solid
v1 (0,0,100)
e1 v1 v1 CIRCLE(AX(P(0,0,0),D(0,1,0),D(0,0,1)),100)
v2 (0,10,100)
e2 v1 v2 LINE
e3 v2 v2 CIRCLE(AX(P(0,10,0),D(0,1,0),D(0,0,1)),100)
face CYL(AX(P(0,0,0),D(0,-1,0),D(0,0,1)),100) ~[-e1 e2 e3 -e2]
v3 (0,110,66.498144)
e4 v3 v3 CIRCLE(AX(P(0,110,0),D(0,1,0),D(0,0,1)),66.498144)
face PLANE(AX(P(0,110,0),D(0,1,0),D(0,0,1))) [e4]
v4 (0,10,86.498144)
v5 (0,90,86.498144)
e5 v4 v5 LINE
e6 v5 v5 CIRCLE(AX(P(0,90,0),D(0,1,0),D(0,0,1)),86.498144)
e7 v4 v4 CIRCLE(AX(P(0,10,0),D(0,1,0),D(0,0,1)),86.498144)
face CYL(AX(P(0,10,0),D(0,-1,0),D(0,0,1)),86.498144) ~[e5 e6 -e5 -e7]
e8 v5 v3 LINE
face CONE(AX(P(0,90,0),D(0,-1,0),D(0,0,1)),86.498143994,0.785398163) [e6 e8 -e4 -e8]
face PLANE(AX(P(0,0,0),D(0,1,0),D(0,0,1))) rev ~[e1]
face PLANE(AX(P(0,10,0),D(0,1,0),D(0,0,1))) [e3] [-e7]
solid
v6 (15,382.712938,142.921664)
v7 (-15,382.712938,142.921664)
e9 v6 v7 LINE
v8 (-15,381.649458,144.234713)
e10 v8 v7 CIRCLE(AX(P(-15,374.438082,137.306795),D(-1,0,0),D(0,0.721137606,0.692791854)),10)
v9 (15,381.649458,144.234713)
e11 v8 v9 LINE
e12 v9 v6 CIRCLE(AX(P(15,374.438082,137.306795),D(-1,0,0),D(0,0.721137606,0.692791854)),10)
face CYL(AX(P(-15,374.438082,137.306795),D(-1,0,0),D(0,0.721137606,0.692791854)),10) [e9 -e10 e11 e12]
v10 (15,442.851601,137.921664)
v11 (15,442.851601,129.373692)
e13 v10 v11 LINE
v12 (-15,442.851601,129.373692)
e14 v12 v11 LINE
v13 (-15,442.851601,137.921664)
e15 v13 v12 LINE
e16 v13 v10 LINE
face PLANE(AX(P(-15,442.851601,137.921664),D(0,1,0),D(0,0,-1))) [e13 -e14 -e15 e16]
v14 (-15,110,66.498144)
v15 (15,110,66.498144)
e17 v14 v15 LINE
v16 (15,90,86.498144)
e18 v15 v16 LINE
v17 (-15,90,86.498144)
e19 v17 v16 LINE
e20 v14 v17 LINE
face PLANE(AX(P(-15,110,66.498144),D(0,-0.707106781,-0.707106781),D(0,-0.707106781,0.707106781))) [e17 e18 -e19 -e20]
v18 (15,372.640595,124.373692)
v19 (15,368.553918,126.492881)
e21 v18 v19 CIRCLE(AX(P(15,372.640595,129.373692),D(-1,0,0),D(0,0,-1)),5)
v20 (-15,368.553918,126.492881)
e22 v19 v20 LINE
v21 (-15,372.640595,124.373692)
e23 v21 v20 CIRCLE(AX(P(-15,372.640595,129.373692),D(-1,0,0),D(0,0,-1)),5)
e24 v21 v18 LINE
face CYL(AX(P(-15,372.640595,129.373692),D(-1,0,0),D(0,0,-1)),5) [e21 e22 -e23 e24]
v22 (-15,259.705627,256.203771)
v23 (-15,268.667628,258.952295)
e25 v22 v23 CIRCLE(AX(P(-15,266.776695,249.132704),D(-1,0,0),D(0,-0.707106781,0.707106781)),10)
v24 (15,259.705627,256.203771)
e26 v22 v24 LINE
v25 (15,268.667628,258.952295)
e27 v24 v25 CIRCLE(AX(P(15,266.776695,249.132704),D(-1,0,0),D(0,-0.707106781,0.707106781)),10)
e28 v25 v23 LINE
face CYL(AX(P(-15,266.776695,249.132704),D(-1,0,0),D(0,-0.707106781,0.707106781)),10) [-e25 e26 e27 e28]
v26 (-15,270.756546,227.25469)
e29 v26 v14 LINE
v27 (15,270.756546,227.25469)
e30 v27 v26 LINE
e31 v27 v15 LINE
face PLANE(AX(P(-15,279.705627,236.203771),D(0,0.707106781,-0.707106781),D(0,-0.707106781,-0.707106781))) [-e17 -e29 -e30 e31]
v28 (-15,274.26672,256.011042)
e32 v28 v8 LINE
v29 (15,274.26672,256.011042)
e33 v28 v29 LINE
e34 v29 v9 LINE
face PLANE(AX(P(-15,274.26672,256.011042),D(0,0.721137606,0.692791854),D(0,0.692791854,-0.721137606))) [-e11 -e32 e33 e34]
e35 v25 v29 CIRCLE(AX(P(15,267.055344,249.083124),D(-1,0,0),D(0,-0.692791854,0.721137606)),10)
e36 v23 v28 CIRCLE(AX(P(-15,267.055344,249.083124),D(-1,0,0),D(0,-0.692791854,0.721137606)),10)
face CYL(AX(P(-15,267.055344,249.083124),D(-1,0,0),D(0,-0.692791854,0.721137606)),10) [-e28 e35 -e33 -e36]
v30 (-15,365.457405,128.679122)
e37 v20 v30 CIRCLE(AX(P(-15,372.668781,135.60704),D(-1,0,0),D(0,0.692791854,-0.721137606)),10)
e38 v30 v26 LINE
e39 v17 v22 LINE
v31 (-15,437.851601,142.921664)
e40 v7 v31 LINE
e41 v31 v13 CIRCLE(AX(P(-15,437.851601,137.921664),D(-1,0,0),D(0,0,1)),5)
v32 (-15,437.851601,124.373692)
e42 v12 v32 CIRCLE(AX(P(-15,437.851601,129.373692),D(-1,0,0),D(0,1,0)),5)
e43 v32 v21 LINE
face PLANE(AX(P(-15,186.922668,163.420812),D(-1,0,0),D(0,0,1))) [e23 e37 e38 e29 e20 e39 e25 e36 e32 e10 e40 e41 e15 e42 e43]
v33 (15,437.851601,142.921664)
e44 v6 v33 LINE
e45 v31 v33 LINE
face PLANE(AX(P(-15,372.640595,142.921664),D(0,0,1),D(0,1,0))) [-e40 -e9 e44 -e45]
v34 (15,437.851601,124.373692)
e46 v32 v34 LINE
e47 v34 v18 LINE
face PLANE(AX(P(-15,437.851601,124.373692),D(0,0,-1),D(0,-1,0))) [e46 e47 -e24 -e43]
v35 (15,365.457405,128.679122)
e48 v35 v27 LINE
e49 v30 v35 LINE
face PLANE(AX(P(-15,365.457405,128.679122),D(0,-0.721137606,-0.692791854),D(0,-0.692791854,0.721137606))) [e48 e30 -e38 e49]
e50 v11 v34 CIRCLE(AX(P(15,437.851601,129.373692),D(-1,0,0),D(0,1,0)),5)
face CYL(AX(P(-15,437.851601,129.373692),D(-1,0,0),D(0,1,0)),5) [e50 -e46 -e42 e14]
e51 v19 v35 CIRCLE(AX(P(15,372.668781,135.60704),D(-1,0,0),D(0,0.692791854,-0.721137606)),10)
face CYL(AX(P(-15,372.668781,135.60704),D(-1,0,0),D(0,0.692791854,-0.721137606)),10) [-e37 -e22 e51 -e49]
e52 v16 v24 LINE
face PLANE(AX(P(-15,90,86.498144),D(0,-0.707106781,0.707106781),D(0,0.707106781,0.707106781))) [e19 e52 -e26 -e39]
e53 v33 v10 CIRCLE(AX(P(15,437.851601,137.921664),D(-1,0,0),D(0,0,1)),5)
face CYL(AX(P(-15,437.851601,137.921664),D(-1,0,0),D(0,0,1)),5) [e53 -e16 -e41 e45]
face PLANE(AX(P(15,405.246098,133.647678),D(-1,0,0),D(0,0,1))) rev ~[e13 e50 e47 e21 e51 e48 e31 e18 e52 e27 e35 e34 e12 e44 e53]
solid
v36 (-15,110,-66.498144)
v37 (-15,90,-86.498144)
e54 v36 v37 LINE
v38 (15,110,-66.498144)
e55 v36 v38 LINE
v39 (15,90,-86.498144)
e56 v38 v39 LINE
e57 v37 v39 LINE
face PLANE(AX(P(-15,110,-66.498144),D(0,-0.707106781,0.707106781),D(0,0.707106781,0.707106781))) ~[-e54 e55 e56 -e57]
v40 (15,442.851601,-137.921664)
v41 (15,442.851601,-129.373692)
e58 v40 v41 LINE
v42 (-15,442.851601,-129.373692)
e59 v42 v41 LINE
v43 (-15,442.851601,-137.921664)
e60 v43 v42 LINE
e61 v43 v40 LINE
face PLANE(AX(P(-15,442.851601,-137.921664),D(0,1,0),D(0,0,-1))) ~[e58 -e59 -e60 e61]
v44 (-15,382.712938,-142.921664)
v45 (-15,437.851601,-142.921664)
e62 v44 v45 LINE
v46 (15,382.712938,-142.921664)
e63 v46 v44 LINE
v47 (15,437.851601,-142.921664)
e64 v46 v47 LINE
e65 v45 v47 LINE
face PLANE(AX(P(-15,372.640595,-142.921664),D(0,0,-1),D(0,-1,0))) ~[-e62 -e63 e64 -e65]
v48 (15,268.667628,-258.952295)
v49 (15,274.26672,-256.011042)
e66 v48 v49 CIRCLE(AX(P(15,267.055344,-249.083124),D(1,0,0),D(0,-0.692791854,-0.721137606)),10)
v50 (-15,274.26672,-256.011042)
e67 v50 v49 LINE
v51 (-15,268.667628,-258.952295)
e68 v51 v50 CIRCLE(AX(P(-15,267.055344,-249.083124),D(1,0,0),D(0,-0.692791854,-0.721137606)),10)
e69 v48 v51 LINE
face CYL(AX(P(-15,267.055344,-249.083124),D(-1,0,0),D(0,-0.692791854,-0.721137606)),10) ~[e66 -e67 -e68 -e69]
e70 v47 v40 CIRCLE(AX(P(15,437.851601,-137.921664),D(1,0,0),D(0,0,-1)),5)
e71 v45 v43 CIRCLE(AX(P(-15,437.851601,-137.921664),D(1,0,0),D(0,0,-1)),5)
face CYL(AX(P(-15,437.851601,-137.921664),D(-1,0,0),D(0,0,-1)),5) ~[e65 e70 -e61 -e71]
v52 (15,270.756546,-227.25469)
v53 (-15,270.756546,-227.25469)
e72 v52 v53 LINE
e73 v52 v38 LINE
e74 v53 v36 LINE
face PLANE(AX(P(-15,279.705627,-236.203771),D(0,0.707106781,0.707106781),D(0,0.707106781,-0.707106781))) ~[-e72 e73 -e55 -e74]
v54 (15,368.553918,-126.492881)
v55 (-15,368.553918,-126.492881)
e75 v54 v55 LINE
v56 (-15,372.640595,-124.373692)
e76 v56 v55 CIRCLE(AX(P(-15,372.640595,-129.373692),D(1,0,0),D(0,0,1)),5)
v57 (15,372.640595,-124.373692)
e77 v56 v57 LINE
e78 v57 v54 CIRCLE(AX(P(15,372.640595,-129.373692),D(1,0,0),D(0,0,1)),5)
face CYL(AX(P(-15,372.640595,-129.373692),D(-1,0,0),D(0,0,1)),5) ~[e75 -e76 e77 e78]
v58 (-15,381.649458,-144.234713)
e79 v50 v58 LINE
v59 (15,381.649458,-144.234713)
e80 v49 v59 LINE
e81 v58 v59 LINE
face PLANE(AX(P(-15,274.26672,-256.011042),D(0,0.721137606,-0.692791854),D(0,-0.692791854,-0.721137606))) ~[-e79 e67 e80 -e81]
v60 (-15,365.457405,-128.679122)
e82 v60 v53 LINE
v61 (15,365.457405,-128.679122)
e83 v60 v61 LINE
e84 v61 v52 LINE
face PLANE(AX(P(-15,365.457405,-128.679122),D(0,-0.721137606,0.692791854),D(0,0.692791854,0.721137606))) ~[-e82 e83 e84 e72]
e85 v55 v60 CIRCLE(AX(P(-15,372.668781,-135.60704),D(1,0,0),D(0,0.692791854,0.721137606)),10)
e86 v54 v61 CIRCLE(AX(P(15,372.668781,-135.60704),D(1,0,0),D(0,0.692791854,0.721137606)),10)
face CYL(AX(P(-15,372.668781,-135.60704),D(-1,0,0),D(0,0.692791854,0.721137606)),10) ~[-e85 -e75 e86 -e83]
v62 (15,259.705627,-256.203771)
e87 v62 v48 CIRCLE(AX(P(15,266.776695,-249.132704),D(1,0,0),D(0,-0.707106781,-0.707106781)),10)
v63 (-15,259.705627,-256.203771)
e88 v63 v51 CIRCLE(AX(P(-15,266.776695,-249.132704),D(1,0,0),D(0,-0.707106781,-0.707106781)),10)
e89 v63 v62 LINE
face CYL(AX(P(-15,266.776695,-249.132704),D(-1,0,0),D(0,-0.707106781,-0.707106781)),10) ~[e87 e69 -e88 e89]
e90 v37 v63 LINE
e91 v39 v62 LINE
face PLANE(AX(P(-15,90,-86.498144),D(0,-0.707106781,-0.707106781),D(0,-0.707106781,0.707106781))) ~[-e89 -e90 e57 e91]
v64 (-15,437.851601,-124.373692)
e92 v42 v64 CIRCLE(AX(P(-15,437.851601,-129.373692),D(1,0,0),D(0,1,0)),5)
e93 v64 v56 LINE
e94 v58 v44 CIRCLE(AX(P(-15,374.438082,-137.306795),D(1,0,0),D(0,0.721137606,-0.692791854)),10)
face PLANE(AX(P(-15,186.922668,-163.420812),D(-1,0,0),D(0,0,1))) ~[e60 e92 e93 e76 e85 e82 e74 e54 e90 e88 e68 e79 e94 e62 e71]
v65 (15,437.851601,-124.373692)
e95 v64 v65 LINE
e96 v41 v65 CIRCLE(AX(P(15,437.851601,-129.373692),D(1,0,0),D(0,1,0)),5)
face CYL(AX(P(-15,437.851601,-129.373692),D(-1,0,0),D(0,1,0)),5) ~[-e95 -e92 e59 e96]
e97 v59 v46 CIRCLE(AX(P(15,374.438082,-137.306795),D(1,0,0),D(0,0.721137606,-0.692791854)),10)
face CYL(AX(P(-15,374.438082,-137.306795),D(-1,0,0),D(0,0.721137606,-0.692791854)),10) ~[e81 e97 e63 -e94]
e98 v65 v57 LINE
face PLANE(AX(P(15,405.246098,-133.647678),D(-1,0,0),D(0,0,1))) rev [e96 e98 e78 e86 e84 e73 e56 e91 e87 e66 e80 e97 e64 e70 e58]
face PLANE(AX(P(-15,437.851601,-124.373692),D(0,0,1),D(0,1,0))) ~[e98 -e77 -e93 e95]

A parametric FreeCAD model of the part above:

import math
import FreeCAD as App
import Part
import Sketcher
from FreeCAD import Vector
Q = App.Units.Quantity


def edges_at(feature, points):
    """Names of the edges that pass closest to the given points."""
    edges = feature.Shape.Edges
    near = lambda p: min(range(len(edges)), key=lambda i: edges[i].distToShape(Part.Vertex(*p))[0])
    return sorted({f"Edge{near(p) + 1}" for p in points})

doc = App.newDocument("Part")
body = doc.addObject("PartDesign::Body", "Body")

# Sketch on XZ plane
sketch1 = body.newObject("Sketcher::SketchObject", "Sketch")
sketch1.AttachmentSupport = (doc.getObject("XZ_Plane"), [""])
sketch1.MapMode = "FlatFace"
sketch1.addGeometry(Part.Circle(Vector(0, 0, 0), Vector(0, 0, 1), 100), False)
sketch1.addConstraint([
    Sketcher.Constraint("Coincident", 0, 3, -1, 1),
    Sketcher.Constraint("Diameter", 0, Q("200 mm")),
])
pad1 = body.newObject("PartDesign::Pad", "Pad")
pad1.Profile = sketch1
pad1.Length = 10
pad1.Reversed = True

# Sketch on XZ plane
sketch2 = body.newObject("Sketcher::SketchObject", "Sketch001")
sketch2.AttachmentSupport = (doc.getObject("XZ_Plane"), [""])
sketch2.MapMode = "FlatFace"
sketch2.AttachmentOffset = App.Placement(Vector(0, 0, -10), App.Rotation())
sketch2.addGeometry(Part.Circle(Vector(0, 0, 0), Vector(0, 0, 1), 86.498144), False)
sketch2.addConstraint([
    Sketcher.Constraint("Coincident", 0, 3, -1, 1),
    Sketcher.Constraint("Diameter", 0, Q("172.996288 mm")),
])
pad2 = body.newObject("PartDesign::Pad", "Pad001")
pad2.Profile = sketch2
pad2.Length = 100
pad2.Reversed = True
doc.recompute()

chamfer = body.newObject("PartDesign::Chamfer", "Chamfer")
chamfer.Base = (pad2, edges_at(pad2, [(0, 110, -86.498)]))
chamfer.Size = 20
body2 = doc.addObject("PartDesign::Body", "Body001")

# Sketch on YZ plane
sketch3 = body2.newObject("Sketcher::SketchObject", "Sketch002")
sketch3.AttachmentSupport = (doc.getObject("YZ_Plane001"), [""])
sketch3.MapMode = "FlatFace"
sketch3.addGeometry([
    Part.LineSegment(Vector(90, 86.498144, 0), Vector(110, 66.498144, 0)),  # 0
    Part.LineSegment(Vector(110, 66.498144, 0), Vector(279.705627, 236.203771, 0)),  # 1
    Part.ArcOfCircle(Part.Circle(Vector(272.63456, 243.274839, 0), Vector(0, 0, 1), 10), math.radians(-45), math.radians(45)),  # 2
    Part.LineSegment(Vector(279.705627, 250.345907, 0), Vector(273.847763, 256.203771, 0)),  # 3
    Part.ArcOfCircle(Part.Circle(Vector(266.776695, 249.132704, 0), Vector(0, 0, 1), 10), math.radians(45), math.radians(135)),  # 4
    Part.LineSegment(Vector(259.705627, 256.203771, 0), Vector(90, 86.498144, 0)),  # 5
], False)
sketch3.addConstraint([
    Sketcher.Constraint("Coincident", 0, 2, 1, 1),
    Sketcher.Constraint("Tangent", 1, 2, 2, 1),
    Sketcher.Constraint("Tangent", 2, 2, 3, 1),
    Sketcher.Constraint("Tangent", 3, 2, 4, 1),
    Sketcher.Constraint("Tangent", 4, 2, 5, 1),
    Sketcher.Constraint("Coincident", 5, 2, 0, 1),
    Sketcher.Constraint("Equal", 2, 4),
    Sketcher.Constraint("Perpendicular", 0, 1),
    Sketcher.Constraint("Perpendicular", 1, 3),
    Sketcher.Constraint("Perpendicular", 3, 5),
    Sketcher.Constraint("Horizontal", 3, 2, 4, 2),
    Sketcher.Constraint("Radius", 2, Q("10 mm")),
    Sketcher.Constraint("Distance", 1, Q("240 mm")),
    Sketcher.Constraint("DistanceX", -1, 1, 0, 2, Q("110 mm")),
    Sketcher.Constraint("DistanceX", -1, 1, 5, 2, Q("90 mm")),
    Sketcher.Constraint("DistanceY", -1, 1, 2, 3, Q("243.274839 mm")),
])
pad3 = body2.newObject("PartDesign::Pad", "Pad002")
pad3.Profile = sketch3
pad3.Type = "TwoLengths"
pad3.Length = 15
pad3.Length2 = 15

# Sketch on YZ plane
sketch4 = body2.newObject("Sketcher::SketchObject", "Sketch003")
sketch4.AttachmentSupport = (doc.getObject("YZ_Plane001"), [""])
sketch4.MapMode = "FlatFace"
sketch4.addGeometry([
    Part.LineSegment(Vector(260.127426, 256.2945, 0), Vector(258.358125, 254.594745, 0)),  # 0
    Part.ArcOfCircle(Part.Circle(Vector(265.286044, 247.383369, 0), Vector(0, 0, 1), 10), math.radians(133.851517), math.radians(223.851517)),  # 1
    Part.LineSegment(Vector(258.074668, 240.455451, 0), Vector(365.457405, 128.679122, 0)),  # 2
    Part.ArcOfCircle(Part.Circle(Vector(372.668781, 135.60704, 0), Vector(0, 0, 1), 10), math.radians(-136.148483), math.radians(-46.148483)),  # 3
    Part.LineSegment(Vector(379.5967, 128.395664, 0), Vector(381.366, 130.095419, 0)),  # 4
    Part.ArcOfCircle(Part.Circle(Vector(374.438082, 137.306795, 0), Vector(0, 0, 1), 10), math.radians(-46.148483), math.radians(43.851517)),  # 5
    Part.LineSegment(Vector(381.649458, 144.234713, 0), Vector(274.26672, 256.011042, 0)),  # 6
    Part.ArcOfCircle(Part.Circle(Vector(267.055344, 249.083124, 0), Vector(0, 0, 1), 10), math.radians(43.851517), math.radians(133.851517)),  # 7
], False)
sketch4.addConstraint([
    Sketcher.Constraint("Tangent", 0, 2, 1, 1),
    Sketcher.Constraint("Tangent", 1, 2, 2, 1),
    Sketcher.Constraint("Tangent", 2, 2, 3, 1),
    Sketcher.Constraint("Tangent", 3, 2, 4, 1),
    Sketcher.Constraint("Tangent", 4, 2, 5, 1),
    Sketcher.Constraint("Tangent", 5, 2, 6, 1),
    Sketcher.Constraint("Tangent", 6, 2, 7, 1),
    Sketcher.Constraint("Tangent", 7, 2, 0, 1),
    Sketcher.Constraint("Equal", 1, 3),
    Sketcher.Constraint("Equal", 3, 5),
    Sketcher.Constraint("Equal", 5, 7),
    Sketcher.Constraint("Perpendicular", 0, 2),
    Sketcher.Constraint("Perpendicular", 2, 4),
    Sketcher.Constraint("Perpendicular", 4, 6),
    Sketcher.Constraint("Radius", 1, Q("10 mm")),
    Sketcher.Constraint("Distance", 2, Q("155 mm")),
    Sketcher.Constraint("DistanceX", -1, 1, 4, 2, Q("381.366 mm")),
    Sketcher.Constraint("DistanceX", -1, 1, 3, 2, Q("379.5967 mm")),
    Sketcher.Constraint("DistanceY", -1, 1, 7, 2, Q("256.2945 mm")),
    Sketcher.Constraint("DistanceY", -1, 1, 1, 3, Q("247.383369 mm")),
])
pad4 = body2.newObject("PartDesign::Pad", "Pad003")
pad4.Profile = sketch4
pad4.Type = "TwoLengths"
pad4.Length = 15
pad4.Length2 = 15

# Sketch on YZ plane
sketch5 = body2.newObject("Sketcher::SketchObject", "Sketch004")
sketch5.AttachmentSupport = (doc.getObject("YZ_Plane001"), [""])
sketch5.MapMode = "FlatFace"
sketch5.addGeometry([
    Part.LineSegment(Vector(367.640595, 137.921664, 0), Vector(367.640595, 129.373692, 0)),  # 0
    Part.ArcOfCircle(Part.Circle(Vector(372.640595, 129.373692, 0), Vector(0, 0, 1), 5), math.radians(180), math.radians(270)),  # 1
    Part.LineSegment(Vector(372.640595, 124.373692, 0), Vector(437.851601, 124.373692, 0)),  # 2
    Part.ArcOfCircle(Part.Circle(Vector(437.851601, 129.373692, 0), Vector(0, 0, 1), 5), math.radians(-90), math.radians(0)),  # 3
    Part.LineSegment(Vector(442.851601, 129.373692, 0), Vector(442.851601, 137.921664, 0)),  # 4
    Part.ArcOfCircle(Part.Circle(Vector(437.851601, 137.921664, 0), Vector(0, 0, 1), 5), math.radians(0), math.radians(90)),  # 5
    Part.LineSegment(Vector(437.851601, 142.921664, 0), Vector(372.640595, 142.921664, 0)),  # 6
    Part.ArcOfCircle(Part.Circle(Vector(372.640595, 137.921664, 0), Vector(0, 0, 1), 5), math.radians(90), math.radians(180)),  # 7
], False)
sketch5.addConstraint([
    Sketcher.Constraint("Tangent", 0, 2, 1, 1),
    Sketcher.Constraint("Tangent", 1, 2, 2, 1),
    Sketcher.Constraint("Tangent", 2, 2, 3, 1),
    Sketcher.Constraint("Tangent", 3, 2, 4, 1),
    Sketcher.Constraint("Tangent", 4, 2, 5, 1),
    Sketcher.Constraint("Tangent", 5, 2, 6, 1),
    Sketcher.Constraint("Tangent", 6, 2, 7, 1),
    Sketcher.Constraint("Tangent", 7, 2, 0, 1),
    Sketcher.Constraint("Vertical", 0),
    Sketcher.Constraint("Horizontal", 2),
    Sketcher.Constraint("Vertical", 4),
    Sketcher.Constraint("Horizontal", 6),
    Sketcher.Constraint("Equal", 1, 3),
    Sketcher.Constraint("Equal", 3, 5),
    Sketcher.Constraint("Equal", 5, 7),
    Sketcher.Constraint("Radius", 1, Q("5 mm")),
    Sketcher.Constraint("DistanceY", 0, 2, 0, 1, Q("8.547972 mm")),
    Sketcher.Constraint("DistanceX", -1, 1, 3, 3, Q("437.851601 mm")),
    Sketcher.Constraint("DistanceX", 2, 1, 2, 2, Q("65.211007 mm")),
    Sketcher.Constraint("DistanceY", -1, 1, 1, 3, Q("129.373692 mm")),
])
pad5 = body2.newObject("PartDesign::Pad", "Pad004")
pad5.Profile = sketch5
pad5.Type = "TwoLengths"
pad5.Length = 15
pad5.Length2 = 15
body3 = doc.addObject("PartDesign::Body", "Body002")
doc.recompute()

mirroring = doc.addObject("Part::Mirroring", "Mirroring")
mirroring.Source = body2
mirroring.Base = Vector(0, 0, 0)
mirroring.Normal = Vector(0, 0, 1)
body3.BaseFeature = mirroring
doc.recompute()
mirroring.Visibility = False

doc.recompute()
